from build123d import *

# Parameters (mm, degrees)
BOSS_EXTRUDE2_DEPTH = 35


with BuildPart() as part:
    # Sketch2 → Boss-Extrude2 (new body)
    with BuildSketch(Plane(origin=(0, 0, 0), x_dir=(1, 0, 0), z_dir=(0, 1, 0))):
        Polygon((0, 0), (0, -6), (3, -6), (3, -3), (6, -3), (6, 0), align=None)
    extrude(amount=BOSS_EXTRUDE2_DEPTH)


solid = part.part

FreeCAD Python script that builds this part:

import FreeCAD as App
import Part
import Sketcher
from FreeCAD import Vector

doc = App.newDocument("Part")
body = doc.addObject("PartDesign::Body", "Body")

sketch1 = body.newObject("Sketcher::SketchObject", "Sketch")
sketch1.AttachmentSupport = (doc.getObject("XZ_Plane"), [""])
sketch1.MapMode = "FlatFace"
sketch1.addGeometry(Part.LineSegment(Vector(0, 0, 0), Vector(0, 6, 0)), False)
sketch1.addGeometry(Part.LineSegment(Vector(0, 6, 0), Vector(3, 6, 0)), False)
sketch1.addGeometry(Part.LineSegment(Vector(3, 6, 0), Vector(3, 3, 0)), False)
sketch1.addGeometry(Part.LineSegment(Vector(3, 3, 0), Vector(6, 3, 0)), False)
sketch1.addGeometry(Part.LineSegment(Vector(6, 3, 0), Vector(6, 0, 0)), False)
sketch1.addGeometry(Part.LineSegment(Vector(6, 0, 0), Vector(0, 0, 0)), False)
sketch1.addConstraint(Sketcher.Constraint("Coincident", 0, 2, 1, 1))
sketch1.addConstraint(Sketcher.Constraint("Coincident", 1, 2, 2, 1))
sketch1.addConstraint(Sketcher.Constraint("Coincident", 2, 2, 3, 1))
sketch1.addConstraint(Sketcher.Constraint("Coincident", 3, 2, 4, 1))
sketch1.addConstraint(Sketcher.Constraint("Coincident", 4, 2, 5, 1))
sketch1.addConstraint(Sketcher.Constraint("Coincident", 5, 2, 0, 1))
sketch1.addConstraint(Sketcher.Constraint("Vertical", 0))
sketch1.addConstraint(Sketcher.Constraint("Horizontal", 1))
sketch1.addConstraint(Sketcher.Constraint("Vertical", 2))
sketch1.addConstraint(Sketcher.Constraint("Horizontal", 3))
sketch1.addConstraint(Sketcher.Constraint("Vertical", 4))
sketch1.addConstraint(Sketcher.Constraint("Horizontal", 5))
sketch1.addConstraint(Sketcher.Constraint("Coincident", 5, 2, -1, 1))
sketch1.addConstraint(Sketcher.Constraint("Equal", 1, 3))
sketch1.addConstraint(Sketcher.Constraint("Equal", 5, 0))
sketch1.addConstraint(Sketcher.Constraint("Equal", 3, 2))
sketch1.addConstraint(Sketcher.Constraint("DistanceX", 1, 1, 1, 2, 3.0))
pad1 = body.newObject("PartDesign::Pad", "Pad")
pad1.Profile = sketch1
pad1.Length = 35
pad1.Reversed = True

doc.recompute()
